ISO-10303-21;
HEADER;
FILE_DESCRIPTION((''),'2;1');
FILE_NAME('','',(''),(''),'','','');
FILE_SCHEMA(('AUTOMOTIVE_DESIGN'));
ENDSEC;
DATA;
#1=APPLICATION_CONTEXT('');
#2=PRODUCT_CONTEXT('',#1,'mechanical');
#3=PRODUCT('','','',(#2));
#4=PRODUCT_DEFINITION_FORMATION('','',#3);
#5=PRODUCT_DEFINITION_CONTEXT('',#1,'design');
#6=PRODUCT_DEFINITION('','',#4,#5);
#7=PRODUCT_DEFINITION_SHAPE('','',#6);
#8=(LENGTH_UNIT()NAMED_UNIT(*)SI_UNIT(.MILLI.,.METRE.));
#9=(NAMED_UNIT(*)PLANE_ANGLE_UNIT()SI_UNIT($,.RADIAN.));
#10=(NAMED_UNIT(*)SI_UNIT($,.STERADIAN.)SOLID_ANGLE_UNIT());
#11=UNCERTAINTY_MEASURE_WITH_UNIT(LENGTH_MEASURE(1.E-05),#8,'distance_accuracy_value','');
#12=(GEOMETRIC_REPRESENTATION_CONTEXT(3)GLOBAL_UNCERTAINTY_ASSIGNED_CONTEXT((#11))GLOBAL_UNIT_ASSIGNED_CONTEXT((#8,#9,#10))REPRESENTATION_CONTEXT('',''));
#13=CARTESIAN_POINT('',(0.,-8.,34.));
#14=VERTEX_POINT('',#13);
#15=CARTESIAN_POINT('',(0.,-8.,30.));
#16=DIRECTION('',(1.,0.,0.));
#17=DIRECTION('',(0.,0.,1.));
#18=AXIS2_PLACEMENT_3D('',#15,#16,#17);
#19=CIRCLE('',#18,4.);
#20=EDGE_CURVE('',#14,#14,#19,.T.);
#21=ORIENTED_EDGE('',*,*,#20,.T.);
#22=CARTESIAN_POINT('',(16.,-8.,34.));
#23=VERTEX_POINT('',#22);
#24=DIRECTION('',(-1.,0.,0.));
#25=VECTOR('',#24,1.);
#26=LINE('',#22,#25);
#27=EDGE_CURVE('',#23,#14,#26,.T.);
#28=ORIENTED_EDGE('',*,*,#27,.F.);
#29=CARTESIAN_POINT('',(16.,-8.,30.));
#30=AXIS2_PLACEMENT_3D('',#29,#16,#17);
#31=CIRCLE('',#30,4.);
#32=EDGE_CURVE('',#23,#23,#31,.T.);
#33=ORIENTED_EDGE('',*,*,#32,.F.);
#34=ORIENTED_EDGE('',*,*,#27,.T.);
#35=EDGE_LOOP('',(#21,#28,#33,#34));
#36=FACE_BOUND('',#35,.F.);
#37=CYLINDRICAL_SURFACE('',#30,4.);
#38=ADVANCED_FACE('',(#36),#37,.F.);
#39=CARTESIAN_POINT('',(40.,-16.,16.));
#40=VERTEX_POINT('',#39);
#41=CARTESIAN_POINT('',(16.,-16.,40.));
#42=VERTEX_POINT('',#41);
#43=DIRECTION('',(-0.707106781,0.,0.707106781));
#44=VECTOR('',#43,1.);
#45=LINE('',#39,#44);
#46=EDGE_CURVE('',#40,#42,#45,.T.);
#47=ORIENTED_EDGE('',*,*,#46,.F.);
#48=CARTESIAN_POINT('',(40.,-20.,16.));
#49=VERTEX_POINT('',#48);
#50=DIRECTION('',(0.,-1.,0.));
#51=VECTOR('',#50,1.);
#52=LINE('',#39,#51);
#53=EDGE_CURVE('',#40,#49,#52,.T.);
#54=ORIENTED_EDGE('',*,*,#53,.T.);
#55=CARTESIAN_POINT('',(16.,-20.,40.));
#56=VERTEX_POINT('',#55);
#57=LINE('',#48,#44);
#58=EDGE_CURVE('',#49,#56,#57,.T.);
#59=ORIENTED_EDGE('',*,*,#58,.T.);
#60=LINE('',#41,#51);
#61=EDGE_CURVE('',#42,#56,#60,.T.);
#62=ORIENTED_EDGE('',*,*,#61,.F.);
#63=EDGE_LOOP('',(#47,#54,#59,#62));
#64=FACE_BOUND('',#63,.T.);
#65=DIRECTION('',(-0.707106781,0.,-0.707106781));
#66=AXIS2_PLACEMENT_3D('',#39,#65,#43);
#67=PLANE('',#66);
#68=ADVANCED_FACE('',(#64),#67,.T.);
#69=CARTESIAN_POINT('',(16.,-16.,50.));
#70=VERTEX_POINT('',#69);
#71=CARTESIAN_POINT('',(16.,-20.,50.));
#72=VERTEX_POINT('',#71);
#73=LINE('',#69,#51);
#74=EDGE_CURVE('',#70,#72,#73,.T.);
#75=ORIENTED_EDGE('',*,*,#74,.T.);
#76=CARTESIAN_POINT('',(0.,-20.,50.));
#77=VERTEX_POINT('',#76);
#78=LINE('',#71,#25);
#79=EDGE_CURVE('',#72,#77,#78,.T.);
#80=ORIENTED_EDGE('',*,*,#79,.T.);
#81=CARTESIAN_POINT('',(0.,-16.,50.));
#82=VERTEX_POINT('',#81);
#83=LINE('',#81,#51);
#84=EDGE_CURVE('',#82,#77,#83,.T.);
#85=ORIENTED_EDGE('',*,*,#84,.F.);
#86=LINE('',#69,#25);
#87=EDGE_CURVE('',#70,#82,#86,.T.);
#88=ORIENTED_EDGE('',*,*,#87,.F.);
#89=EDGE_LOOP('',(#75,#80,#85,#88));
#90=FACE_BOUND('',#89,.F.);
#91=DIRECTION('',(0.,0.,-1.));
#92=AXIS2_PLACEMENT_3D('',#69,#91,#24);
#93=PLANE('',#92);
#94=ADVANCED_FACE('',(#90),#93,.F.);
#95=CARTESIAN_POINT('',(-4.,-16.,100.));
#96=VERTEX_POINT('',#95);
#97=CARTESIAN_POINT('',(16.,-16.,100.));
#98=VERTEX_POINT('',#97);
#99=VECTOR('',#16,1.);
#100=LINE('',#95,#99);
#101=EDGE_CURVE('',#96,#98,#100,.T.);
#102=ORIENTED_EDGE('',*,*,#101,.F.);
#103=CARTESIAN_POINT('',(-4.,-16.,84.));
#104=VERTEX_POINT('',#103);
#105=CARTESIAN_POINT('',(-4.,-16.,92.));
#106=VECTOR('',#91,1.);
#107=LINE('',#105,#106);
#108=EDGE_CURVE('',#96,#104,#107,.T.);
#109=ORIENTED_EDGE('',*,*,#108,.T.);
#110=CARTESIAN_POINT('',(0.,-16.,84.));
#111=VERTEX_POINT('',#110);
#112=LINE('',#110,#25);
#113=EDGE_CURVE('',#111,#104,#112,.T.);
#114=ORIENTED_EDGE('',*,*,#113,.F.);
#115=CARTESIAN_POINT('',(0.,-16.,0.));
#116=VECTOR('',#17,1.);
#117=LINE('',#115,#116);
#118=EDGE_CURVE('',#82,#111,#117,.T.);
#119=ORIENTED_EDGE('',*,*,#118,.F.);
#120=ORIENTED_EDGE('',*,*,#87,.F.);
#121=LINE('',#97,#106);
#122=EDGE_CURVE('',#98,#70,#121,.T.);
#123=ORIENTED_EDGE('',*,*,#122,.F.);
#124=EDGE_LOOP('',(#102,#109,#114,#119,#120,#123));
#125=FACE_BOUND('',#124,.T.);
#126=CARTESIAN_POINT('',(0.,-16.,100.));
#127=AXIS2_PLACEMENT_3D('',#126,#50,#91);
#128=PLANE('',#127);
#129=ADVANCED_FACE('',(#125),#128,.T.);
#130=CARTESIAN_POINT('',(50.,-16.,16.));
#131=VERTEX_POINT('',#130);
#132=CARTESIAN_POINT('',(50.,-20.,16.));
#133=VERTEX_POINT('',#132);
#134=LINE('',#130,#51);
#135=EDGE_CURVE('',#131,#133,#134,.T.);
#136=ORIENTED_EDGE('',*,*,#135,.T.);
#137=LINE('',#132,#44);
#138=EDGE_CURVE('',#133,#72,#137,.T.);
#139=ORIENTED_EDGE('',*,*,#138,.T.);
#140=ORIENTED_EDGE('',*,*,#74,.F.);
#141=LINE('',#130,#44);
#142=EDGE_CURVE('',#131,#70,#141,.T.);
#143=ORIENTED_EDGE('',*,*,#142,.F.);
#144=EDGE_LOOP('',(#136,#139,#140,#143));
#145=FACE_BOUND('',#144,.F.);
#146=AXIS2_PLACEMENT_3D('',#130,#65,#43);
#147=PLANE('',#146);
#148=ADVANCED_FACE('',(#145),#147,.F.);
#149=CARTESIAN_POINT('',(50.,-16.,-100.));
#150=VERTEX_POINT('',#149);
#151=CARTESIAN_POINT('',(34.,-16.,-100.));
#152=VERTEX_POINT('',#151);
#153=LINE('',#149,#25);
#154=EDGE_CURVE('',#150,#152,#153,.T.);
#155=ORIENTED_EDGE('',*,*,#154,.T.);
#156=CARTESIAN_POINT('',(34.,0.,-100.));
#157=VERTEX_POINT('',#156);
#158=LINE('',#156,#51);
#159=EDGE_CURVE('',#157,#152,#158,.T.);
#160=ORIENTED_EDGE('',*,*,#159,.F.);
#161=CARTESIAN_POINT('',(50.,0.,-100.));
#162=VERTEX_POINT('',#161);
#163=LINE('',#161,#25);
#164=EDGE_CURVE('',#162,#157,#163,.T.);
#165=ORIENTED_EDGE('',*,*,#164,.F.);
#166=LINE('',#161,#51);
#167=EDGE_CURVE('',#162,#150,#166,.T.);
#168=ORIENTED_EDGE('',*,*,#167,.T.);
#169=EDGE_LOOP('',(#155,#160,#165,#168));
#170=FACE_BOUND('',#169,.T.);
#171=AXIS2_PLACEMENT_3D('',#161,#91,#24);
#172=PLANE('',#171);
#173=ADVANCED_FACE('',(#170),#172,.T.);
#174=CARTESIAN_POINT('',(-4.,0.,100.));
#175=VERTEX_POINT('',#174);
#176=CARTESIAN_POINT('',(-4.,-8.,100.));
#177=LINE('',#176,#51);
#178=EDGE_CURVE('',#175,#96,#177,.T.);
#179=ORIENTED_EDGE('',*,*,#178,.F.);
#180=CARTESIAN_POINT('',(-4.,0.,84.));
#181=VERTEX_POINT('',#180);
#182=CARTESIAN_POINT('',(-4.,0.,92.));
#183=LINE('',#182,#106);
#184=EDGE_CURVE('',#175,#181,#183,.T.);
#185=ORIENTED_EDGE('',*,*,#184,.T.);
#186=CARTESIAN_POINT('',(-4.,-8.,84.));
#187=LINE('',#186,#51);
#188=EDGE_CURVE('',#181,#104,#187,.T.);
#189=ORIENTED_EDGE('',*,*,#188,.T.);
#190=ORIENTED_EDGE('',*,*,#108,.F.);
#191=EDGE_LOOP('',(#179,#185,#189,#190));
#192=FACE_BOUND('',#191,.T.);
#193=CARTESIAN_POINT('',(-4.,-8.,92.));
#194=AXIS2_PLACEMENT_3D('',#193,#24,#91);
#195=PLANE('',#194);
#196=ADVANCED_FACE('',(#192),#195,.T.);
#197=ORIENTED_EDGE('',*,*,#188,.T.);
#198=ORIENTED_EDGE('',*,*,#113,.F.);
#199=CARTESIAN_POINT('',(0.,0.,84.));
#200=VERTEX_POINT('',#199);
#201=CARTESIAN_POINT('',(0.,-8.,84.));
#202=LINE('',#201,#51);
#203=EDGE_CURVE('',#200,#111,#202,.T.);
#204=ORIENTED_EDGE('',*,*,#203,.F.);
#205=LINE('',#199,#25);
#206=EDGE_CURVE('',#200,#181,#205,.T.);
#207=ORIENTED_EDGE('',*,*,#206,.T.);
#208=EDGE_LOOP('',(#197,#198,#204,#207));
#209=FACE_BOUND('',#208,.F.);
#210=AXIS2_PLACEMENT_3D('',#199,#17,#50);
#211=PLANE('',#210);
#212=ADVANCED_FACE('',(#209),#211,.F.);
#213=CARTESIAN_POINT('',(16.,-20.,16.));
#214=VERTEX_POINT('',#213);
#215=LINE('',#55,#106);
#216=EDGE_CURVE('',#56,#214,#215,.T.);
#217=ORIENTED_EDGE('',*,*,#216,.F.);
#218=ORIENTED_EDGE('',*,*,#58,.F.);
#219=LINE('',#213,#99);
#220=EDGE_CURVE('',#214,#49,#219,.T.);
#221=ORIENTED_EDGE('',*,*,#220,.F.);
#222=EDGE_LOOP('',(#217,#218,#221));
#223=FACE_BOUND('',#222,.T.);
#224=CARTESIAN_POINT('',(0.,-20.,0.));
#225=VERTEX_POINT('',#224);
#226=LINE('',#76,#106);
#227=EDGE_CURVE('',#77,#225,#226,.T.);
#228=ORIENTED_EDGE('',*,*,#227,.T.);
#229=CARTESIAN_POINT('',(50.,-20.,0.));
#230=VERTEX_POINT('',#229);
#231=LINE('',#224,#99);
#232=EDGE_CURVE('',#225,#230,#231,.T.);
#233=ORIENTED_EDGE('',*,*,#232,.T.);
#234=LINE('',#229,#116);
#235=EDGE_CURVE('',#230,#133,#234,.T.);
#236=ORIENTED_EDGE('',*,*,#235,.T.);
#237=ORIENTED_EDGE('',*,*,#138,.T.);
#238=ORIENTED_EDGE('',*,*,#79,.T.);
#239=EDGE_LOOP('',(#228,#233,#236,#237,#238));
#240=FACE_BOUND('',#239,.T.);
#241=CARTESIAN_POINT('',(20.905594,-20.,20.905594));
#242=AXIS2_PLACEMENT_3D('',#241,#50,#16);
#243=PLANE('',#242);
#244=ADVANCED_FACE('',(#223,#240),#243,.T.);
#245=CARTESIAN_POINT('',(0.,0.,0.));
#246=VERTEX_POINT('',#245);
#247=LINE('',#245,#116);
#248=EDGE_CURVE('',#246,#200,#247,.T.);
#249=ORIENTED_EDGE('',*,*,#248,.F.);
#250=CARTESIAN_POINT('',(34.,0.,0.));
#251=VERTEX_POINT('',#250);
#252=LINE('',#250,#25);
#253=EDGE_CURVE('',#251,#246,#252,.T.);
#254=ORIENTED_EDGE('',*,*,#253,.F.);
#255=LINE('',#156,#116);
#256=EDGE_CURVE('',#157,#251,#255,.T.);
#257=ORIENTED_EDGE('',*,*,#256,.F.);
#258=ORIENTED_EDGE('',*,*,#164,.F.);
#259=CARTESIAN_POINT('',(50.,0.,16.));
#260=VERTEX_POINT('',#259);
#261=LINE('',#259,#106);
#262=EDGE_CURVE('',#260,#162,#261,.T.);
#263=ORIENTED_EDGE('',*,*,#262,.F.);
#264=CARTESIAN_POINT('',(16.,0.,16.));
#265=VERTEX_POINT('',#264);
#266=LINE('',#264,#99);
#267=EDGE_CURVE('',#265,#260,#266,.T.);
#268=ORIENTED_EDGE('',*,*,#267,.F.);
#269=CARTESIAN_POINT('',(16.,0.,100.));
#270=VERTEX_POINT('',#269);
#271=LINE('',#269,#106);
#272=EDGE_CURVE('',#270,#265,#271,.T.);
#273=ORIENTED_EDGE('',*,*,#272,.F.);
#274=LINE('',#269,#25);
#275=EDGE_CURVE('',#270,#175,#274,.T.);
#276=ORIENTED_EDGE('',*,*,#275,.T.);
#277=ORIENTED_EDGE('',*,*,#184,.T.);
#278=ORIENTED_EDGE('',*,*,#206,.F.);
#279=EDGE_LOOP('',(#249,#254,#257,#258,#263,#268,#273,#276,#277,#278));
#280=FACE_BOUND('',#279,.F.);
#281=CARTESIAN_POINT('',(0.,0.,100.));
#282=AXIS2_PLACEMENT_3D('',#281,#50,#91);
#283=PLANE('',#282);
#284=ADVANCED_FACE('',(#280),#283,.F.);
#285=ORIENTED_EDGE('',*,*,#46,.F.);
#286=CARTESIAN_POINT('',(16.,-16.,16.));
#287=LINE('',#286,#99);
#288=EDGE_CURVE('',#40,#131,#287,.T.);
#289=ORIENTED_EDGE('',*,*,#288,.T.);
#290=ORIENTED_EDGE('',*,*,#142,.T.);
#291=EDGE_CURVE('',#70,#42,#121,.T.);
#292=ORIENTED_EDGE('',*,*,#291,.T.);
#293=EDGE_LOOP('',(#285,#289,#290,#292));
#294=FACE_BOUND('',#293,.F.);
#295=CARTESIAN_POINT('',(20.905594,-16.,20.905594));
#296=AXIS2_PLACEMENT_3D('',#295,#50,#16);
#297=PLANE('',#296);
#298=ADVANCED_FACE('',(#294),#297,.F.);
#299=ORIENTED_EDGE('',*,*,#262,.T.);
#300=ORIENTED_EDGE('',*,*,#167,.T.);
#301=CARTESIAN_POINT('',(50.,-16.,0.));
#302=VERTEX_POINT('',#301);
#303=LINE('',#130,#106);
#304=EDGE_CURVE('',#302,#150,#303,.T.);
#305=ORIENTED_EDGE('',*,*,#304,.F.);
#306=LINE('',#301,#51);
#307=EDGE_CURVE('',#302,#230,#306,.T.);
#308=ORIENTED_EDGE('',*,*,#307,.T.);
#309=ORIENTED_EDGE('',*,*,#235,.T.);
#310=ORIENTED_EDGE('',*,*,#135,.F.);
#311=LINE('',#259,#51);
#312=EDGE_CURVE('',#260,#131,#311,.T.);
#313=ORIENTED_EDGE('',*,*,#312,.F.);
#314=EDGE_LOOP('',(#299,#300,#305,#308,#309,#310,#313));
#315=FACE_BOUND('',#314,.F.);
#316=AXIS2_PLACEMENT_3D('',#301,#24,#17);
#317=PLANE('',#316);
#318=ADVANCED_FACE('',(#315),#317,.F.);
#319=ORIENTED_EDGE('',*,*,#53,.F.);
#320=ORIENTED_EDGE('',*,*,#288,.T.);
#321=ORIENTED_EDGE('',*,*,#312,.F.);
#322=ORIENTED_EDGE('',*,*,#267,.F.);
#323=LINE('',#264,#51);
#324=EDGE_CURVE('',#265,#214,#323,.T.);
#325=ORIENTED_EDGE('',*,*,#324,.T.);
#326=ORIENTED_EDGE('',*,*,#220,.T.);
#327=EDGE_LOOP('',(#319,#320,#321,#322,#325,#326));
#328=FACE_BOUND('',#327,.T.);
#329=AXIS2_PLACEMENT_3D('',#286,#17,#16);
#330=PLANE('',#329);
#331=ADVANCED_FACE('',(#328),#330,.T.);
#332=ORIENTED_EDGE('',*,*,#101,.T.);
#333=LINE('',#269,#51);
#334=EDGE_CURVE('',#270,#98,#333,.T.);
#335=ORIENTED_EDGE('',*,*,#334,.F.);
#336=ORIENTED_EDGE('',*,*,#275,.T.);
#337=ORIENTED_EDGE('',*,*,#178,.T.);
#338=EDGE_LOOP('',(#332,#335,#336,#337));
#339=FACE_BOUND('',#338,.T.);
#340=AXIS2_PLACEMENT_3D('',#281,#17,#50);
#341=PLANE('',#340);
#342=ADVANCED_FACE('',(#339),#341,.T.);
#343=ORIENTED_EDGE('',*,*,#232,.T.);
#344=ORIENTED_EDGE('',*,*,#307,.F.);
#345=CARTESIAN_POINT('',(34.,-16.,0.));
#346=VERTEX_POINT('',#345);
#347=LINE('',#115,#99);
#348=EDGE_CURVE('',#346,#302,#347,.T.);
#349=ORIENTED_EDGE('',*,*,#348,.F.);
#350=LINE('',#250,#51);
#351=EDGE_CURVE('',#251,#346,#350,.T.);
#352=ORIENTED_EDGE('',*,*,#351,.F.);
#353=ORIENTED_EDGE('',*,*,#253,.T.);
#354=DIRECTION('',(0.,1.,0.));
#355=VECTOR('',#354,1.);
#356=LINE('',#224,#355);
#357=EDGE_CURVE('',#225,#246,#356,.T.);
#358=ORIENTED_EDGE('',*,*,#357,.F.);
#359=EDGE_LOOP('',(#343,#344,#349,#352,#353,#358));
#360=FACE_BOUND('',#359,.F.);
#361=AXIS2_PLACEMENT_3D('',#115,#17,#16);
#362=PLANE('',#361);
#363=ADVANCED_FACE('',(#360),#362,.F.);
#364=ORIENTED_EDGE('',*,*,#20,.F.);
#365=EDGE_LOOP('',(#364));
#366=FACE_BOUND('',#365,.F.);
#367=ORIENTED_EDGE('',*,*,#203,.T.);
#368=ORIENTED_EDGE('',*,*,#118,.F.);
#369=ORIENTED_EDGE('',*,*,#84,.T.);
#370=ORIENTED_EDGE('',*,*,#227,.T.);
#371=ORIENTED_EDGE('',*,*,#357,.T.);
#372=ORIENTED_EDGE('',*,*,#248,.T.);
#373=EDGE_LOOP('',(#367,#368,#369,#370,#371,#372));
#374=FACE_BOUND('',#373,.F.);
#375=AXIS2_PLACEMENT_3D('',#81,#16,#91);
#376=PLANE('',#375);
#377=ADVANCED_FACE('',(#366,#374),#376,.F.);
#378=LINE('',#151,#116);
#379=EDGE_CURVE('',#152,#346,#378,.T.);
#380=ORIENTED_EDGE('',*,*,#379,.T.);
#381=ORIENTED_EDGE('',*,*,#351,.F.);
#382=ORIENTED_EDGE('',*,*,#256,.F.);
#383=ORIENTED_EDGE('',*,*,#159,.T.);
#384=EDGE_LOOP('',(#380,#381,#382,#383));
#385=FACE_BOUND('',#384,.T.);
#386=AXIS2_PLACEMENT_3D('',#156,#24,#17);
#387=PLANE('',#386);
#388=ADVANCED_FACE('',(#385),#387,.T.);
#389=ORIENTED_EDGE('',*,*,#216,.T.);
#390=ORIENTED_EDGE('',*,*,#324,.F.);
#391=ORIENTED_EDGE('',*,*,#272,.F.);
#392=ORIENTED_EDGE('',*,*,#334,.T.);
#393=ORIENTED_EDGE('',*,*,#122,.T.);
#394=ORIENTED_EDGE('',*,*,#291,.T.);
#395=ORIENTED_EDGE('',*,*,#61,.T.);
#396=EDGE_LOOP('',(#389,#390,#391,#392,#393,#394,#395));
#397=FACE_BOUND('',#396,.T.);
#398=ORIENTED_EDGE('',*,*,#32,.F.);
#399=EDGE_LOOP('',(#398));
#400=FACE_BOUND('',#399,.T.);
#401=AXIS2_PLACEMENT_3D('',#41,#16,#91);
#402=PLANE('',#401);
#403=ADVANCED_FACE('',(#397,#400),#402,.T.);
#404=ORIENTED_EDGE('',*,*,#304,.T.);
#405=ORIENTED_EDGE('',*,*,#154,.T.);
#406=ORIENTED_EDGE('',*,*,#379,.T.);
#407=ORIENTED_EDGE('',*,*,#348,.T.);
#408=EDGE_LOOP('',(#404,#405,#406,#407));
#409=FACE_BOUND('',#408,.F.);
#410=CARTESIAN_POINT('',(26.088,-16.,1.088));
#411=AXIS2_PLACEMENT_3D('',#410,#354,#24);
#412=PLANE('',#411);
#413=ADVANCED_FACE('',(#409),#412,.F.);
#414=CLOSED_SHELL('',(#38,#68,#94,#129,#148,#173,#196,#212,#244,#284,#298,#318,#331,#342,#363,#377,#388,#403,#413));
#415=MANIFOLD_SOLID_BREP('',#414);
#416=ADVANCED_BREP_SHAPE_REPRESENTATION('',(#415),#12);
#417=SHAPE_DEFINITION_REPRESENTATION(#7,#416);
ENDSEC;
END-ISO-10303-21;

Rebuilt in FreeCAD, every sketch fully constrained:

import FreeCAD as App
import Part
import Sketcher


def add_polygon(sketch, points):
    """Adds a closed chain of lines whose ends are joined by coincident constraints."""
    first, n = sketch.GeometryCount, len(points)
    for a, b in zip(points, points[1:] + points[:1]):
        sketch.addGeometry(Part.LineSegment(App.Vector(*a, 0), App.Vector(*b, 0)), False)
    for i in range(n):
        sketch.addConstraint(Sketcher.Constraint("Coincident", first + i, 2, first + (i + 1) % n, 1))

doc = App.newDocument("Part")
body = doc.addObject("PartDesign::Body", "Body")

sketch1 = body.newObject("Sketcher::SketchObject", "Sketch")
sketch1.AttachmentSupport = (doc.getObject("XZ_Plane"), [""])
sketch1.MapMode = "FlatFace"
add_polygon(sketch1, [(0, 100), (0, 0), (34, 0), (34, -100), (50, -100), (50, 16), (16, 16), (16, 100)])
sketch1.addConstraint(Sketcher.Constraint("Vertical", 0))
sketch1.addConstraint(Sketcher.Constraint("Horizontal", 1))
sketch1.addConstraint(Sketcher.Constraint("Vertical", 2))
sketch1.addConstraint(Sketcher.Constraint("Horizontal", 3))
sketch1.addConstraint(Sketcher.Constraint("Vertical", 4))
sketch1.addConstraint(Sketcher.Constraint("Horizontal", 5))
sketch1.addConstraint(Sketcher.Constraint("Vertical", 6))
sketch1.addConstraint(Sketcher.Constraint("Horizontal", 7))
sketch1.addConstraint(Sketcher.Constraint("Coincident", 0, 2, -1, 1))
sketch1.addConstraint(Sketcher.Constraint("Equal", 1, 5))
sketch1.addConstraint(Sketcher.Constraint("Equal", 0, 2))
sketch1.addConstraint(Sketcher.Constraint("DistanceX", 1, 1, 1, 2, 34.0))
sketch1.addConstraint(Sketcher.Constraint("DistanceX", 3, 1, 3, 2, 16.0))
sketch1.addConstraint(Sketcher.Constraint("DistanceY", 0, 2, 0, 1, 100.0))
sketch1.addConstraint(Sketcher.Constraint("DistanceY", 4, 1, 4, 2, 116.0))
pad1 = body.newObject("PartDesign::Pad", "Pad")
pad1.Profile = sketch1
pad1.Length = 16

sketch2 = body.newObject("Sketcher::SketchObject", "Sketch001")
sketch2.AttachmentSupport = (doc.getObject("XZ_Plane"), [""])
sketch2.MapMode = "FlatFace"
sketch2.AttachmentOffset = App.Placement(App.Vector(0, 0, 16), App.Rotation())
add_polygon(sketch2, [(0, 0), (50, 0), (50, 16), (16, 50), (0, 50)])
add_polygon(sketch2, [(40, 16), (16, 16), (16, 40)])
sketch2.addConstraint(Sketcher.Constraint("Horizontal", 0))
sketch2.addConstraint(Sketcher.Constraint("Vertical", 1))
sketch2.addConstraint(Sketcher.Constraint("Horizontal", 3))
sketch2.addConstraint(Sketcher.Constraint("Vertical", 4))
sketch2.addConstraint(Sketcher.Constraint("Horizontal", 5))
sketch2.addConstraint(Sketcher.Constraint("Vertical", 6))
sketch2.addConstraint(Sketcher.Constraint("Coincident", 4, 2, -1, 1))
sketch2.addConstraint(Sketcher.Constraint("Parallel", 2, 7))
sketch2.addConstraint(Sketcher.Constraint("Horizontal", 1, 2, 5, 2))
sketch2.addConstraint(Sketcher.Constraint("Vertical", 2, 2, 5, 2))
sketch2.addConstraint(Sketcher.Constraint("Equal", 3, 1))
sketch2.addConstraint(Sketcher.Constraint("Equal", 0, 4))
sketch2.addConstraint(Sketcher.Constraint("DistanceX", 0, 1, 0, 2, 50.0))
sketch2.addConstraint(Sketcher.Constraint("DistanceX", 3, 2, 3, 1, 16.0))
sketch2.addConstraint(Sketcher.Constraint("DistanceX", 5, 2, 5, 1, 24.0))
pad2 = body.newObject("PartDesign::Pad", "Pad001")
pad2.Profile = sketch2
pad2.Length = 4

sketch3 = body.newObject("Sketcher::SketchObject", "Sketch002")
sketch3.AttachmentSupport = (doc.getObject("YZ_Plane"), [""])
sketch3.MapMode = "FlatFace"
sketch3.AttachmentOffset = App.Placement(App.Vector(0, 0, 16), App.Rotation())
sketch3.addGeometry(Part.Circle(App.Vector(-8, 30, 0), App.Vector(0, 0, 1), 4), False)
sketch3.addConstraint(Sketcher.Constraint("Diameter", 0, 8.0))
sketch3.addConstraint(Sketcher.Constraint("DistanceX", 0, 3, -1, 1, 8.0))
sketch3.addConstraint(Sketcher.Constraint("DistanceY", -1, 1, 0, 3, 30.0))
pocket1 = body.newObject("PartDesign::Pocket", "Pocket")
pocket1.Profile = sketch3
pocket1.Type = "ThroughAll"

sketch4 = body.newObject("Sketcher::SketchObject", "Sketch003")
sketch4.AttachmentSupport = (doc.getObject("YZ_Plane"), [""])
sketch4.MapMode = "FlatFace"
add_polygon(sketch4, [(-16, 100), (0, 100), (0, 84), (-16, 84)])
sketch4.addConstraint(Sketcher.Constraint("Horizontal", 0))
sketch4.addConstraint(Sketcher.Constraint("Vertical", 1))
sketch4.addConstraint(Sketcher.Constraint("Horizontal", 2))
sketch4.addConstraint(Sketcher.Constraint("Vertical", 3))
sketch4.addConstraint(Sketcher.Constraint("PointOnObject", 0, 2, -2))
sketch4.addConstraint(Sketcher.Constraint("Equal", 2, 1))
sketch4.addConstraint(Sketcher.Constraint("DistanceX", 0, 1, 0, 2, 16.0))
sketch4.addConstraint(Sketcher.Constraint("DistanceY", -1, 1, 0, 2, 100.0))
pad3 = body.newObject("PartDesign::Pad", "Pad002")
pad3.Profile = sketch4
pad3.Length = 4
pad3.Reversed = True

doc.recompute()
